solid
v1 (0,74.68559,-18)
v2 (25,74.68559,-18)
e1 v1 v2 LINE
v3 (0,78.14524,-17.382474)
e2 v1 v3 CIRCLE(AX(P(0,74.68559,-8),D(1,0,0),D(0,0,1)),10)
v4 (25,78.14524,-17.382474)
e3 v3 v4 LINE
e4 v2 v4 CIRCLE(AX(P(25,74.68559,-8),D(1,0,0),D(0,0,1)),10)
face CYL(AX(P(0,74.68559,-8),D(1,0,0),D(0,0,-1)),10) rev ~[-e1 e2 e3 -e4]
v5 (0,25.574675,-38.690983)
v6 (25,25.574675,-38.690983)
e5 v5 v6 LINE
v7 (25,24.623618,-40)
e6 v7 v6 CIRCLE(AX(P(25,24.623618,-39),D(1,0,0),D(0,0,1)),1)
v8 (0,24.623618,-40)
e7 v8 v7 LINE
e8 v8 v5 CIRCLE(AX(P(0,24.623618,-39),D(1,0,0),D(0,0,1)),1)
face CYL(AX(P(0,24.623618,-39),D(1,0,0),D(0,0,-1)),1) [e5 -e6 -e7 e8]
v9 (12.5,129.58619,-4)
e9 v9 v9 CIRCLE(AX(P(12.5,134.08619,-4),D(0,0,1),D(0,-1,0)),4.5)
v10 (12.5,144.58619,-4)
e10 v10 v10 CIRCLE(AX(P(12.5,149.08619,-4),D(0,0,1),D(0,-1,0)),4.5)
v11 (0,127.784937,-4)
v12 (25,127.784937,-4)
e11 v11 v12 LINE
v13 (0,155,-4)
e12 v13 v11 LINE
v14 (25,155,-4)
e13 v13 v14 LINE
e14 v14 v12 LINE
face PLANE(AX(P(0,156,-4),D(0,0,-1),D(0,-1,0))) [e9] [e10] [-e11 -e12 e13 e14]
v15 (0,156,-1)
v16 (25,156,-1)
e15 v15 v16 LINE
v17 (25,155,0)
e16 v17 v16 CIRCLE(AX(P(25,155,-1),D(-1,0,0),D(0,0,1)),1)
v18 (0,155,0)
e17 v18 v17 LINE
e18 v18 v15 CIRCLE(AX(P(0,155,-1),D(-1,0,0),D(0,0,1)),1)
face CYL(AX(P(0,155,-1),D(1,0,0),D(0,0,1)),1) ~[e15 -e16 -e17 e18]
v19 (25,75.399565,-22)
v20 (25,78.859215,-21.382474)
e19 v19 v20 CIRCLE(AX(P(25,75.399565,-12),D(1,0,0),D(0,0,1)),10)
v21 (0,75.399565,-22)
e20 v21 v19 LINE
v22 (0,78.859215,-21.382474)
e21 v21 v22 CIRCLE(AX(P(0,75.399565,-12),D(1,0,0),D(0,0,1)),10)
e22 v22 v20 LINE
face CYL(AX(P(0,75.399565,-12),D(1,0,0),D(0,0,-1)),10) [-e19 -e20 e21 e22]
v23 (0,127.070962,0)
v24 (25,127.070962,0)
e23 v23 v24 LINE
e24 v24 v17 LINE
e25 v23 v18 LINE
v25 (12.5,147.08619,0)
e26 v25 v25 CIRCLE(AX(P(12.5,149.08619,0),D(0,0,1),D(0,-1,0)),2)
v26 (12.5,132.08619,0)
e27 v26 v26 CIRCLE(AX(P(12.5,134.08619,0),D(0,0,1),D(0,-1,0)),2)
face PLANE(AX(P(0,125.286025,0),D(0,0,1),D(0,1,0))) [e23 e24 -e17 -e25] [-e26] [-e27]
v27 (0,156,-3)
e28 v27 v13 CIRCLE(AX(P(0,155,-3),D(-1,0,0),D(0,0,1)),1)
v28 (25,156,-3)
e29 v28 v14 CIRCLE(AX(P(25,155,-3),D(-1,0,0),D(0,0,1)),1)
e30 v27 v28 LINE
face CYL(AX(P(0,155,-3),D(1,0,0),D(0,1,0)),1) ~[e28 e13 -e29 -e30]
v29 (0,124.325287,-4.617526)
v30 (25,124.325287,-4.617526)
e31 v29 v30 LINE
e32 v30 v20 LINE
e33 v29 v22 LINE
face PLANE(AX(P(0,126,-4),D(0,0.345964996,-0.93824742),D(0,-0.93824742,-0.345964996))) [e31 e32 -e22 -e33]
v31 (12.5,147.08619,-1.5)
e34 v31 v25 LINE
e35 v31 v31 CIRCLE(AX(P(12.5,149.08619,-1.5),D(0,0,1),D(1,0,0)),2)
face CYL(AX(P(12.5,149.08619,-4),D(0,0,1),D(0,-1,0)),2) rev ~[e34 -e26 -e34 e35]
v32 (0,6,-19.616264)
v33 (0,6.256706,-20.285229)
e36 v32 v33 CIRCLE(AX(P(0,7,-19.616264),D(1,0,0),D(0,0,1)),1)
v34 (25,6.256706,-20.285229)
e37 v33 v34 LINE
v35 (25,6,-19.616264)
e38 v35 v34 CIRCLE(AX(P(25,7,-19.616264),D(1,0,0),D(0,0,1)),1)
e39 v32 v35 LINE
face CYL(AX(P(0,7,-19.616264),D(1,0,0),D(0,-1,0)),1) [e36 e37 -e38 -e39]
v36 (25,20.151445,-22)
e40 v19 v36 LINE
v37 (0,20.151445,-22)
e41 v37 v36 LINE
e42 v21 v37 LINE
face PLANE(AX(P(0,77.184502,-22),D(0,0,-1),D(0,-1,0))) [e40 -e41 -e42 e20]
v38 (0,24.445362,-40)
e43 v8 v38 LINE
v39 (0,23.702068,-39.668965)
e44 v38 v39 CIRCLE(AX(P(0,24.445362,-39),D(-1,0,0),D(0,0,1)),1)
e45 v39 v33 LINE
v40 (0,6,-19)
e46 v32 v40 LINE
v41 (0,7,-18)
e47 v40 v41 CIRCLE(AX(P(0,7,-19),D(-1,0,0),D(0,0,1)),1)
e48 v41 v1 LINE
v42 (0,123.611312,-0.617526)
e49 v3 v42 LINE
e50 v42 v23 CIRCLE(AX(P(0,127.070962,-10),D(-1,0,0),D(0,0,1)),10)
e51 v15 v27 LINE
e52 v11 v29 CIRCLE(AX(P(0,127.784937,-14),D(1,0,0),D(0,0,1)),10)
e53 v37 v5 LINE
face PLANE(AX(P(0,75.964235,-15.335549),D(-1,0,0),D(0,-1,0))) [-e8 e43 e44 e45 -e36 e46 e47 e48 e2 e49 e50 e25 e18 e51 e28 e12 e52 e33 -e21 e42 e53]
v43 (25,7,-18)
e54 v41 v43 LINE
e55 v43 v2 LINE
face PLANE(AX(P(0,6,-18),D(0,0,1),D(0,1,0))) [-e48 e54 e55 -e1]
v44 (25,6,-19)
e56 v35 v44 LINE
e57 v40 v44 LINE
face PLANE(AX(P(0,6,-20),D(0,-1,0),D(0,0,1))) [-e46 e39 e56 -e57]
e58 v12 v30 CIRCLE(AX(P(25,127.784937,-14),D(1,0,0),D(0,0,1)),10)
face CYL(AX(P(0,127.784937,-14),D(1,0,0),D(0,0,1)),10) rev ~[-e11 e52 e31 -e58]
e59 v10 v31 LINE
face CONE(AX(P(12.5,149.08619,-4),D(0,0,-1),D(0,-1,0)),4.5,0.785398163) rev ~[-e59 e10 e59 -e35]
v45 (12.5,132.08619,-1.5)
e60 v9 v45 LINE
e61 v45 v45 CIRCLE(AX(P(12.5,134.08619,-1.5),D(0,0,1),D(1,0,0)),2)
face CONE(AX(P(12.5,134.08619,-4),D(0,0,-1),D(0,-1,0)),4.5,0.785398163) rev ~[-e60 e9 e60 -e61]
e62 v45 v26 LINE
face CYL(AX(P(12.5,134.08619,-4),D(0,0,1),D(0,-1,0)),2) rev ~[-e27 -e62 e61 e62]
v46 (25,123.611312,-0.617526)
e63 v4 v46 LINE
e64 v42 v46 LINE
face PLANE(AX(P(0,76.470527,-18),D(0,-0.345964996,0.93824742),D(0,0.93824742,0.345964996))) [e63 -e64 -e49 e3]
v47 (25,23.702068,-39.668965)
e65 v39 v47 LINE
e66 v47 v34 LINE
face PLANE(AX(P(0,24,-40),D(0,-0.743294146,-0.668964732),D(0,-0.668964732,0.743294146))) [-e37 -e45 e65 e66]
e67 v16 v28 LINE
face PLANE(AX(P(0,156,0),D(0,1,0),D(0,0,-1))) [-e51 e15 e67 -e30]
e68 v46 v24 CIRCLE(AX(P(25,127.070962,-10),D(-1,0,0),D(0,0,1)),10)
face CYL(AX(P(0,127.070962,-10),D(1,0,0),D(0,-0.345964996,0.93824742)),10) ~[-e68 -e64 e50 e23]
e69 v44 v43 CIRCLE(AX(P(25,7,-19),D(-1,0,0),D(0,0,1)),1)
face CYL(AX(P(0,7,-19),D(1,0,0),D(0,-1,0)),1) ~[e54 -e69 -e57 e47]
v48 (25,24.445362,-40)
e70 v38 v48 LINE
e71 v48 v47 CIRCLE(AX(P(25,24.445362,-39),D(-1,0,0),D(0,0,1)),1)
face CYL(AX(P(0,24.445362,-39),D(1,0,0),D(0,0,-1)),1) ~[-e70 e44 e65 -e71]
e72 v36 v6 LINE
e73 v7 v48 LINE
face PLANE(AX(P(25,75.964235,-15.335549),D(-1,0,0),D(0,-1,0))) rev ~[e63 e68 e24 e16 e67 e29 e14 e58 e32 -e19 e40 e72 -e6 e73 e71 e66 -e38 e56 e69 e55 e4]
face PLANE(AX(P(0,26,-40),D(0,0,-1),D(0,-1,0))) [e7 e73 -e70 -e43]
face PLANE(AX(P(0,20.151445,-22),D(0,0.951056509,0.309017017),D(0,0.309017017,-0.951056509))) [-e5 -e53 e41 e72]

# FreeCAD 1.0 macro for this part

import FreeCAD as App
import Part
import Sketcher

V = App.Vector
Q = App.Units.Quantity


def edges_at(feature, points):
    """Names of the edges that pass closest to the given points."""
    edges = feature.Shape.Edges
    near = lambda p: min(range(len(edges)), key=lambda i: edges[i].distToShape(Part.Vertex(*p))[0])
    return sorted({f"Edge{near(p) + 1}" for p in points})

doc = App.newDocument("Part")
body = doc.addObject("PartDesign::Body", "Body")

sketch1 = body.newObject("Sketcher::SketchObject", "Sketch")
sketch1.AttachmentSupport = (doc.getObject("YZ_Plane"), [""])
sketch1.MapMode = "FlatFace"
sketch1.addGeometry([
    Part.LineSegment(V(6, -18, 0), V(6, -20, 0)),
    Part.LineSegment(V(6, -20, 0), V(24, -40, 0)),
    Part.LineSegment(V(24, -40, 0), V(26, -40, 0)),
    Part.LineSegment(V(26, -40, 0), V(20.151445, -22, 0)),
    Part.LineSegment(V(20.151445, -22, 0), V(77.184502, -22, 0)),
    Part.LineSegment(V(77.184502, -22, 0), V(126, -4, 0)),
    Part.LineSegment(V(126, -4, 0), V(156, -4, 0)),
    Part.LineSegment(V(156, -4, 0), V(156, 0, 0)),
    Part.LineSegment(V(156, 0, 0), V(125.286025, 0, 0)),
    Part.LineSegment(V(125.286025, 0, 0), V(76.470527, -18, 0)),
    Part.LineSegment(V(76.470527, -18, 0), V(6, -18, 0)),
], False)
sketch1.addConstraint([
    Sketcher.Constraint("Coincident", 0, 2, 1, 1),
    Sketcher.Constraint("Coincident", 1, 2, 2, 1),
    Sketcher.Constraint("Coincident", 2, 2, 3, 1),
    Sketcher.Constraint("Coincident", 3, 2, 4, 1),
    Sketcher.Constraint("Coincident", 4, 2, 5, 1),
    Sketcher.Constraint("Coincident", 5, 2, 6, 1),
    Sketcher.Constraint("Coincident", 6, 2, 7, 1),
    Sketcher.Constraint("Coincident", 7, 2, 8, 1),
    Sketcher.Constraint("Coincident", 8, 2, 9, 1),
    Sketcher.Constraint("Coincident", 9, 2, 10, 1),
    Sketcher.Constraint("Coincident", 10, 2, 0, 1),
    Sketcher.Constraint("Vertical", 0),
    Sketcher.Constraint("Horizontal", 2),
    Sketcher.Constraint("Horizontal", 4),
    Sketcher.Constraint("Horizontal", 6),
    Sketcher.Constraint("Vertical", 7),
    Sketcher.Constraint("Horizontal", 8),
    Sketcher.Constraint("Horizontal", 10),
    Sketcher.Constraint("PointOnObject", 7, 2, -1),
    Sketcher.Constraint("Parallel", 5, 9),
    Sketcher.Constraint("Equal", 2, 0),
    Sketcher.Constraint("Equal", 5, 9),
    Sketcher.Constraint("DistanceX", 2, 1, 2, 2, 2.0),
    Sketcher.Constraint("DistanceX", 6, 1, 6, 2, 30.0),
    Sketcher.Constraint("DistanceY", 7, 1, 7, 2, 4.0),
    Sketcher.Constraint("Angle", 3, Q("108.000001 deg")),
    Sketcher.Constraint("DistanceX", -1, 1, 0, 2, 6.0),
    Sketcher.Constraint("DistanceY", 0, 2, -1, 1, 20.0),
    Sketcher.Constraint("DistanceX", -1, 1, 1, 2, 24.0),
    Sketcher.Constraint("DistanceY", 1, 2, -1, 1, 40.0),
    Sketcher.Constraint("DistanceX", -1, 1, 5, 2, 126.0),
    Sketcher.Constraint("DistanceX", -1, 1, 4, 2, 77.184502),
    Sketcher.Constraint("DistanceX", 8, 2, 8, 1, 30.713975),
])
pad1 = body.newObject("PartDesign::Pad", "Pad")
pad1.Profile = sketch1
pad1.Length = 25

sketch2 = body.newObject("Sketcher::SketchObject", "Sketch001")
sketch2.AttachmentSupport = (doc.getObject("XY_Plane"), [""])
sketch2.MapMode = "FlatFace"
sketch2.AttachmentOffset = App.Placement(V(0, 0, -4), App.Rotation())
sketch2.addGeometry([
    Part.Circle(V(12.5, 134.08619, 0), V(0, 0, 1), 2),
    Part.Circle(V(12.5, 149.08619, 0), V(0, 0, 1), 2),
], False)
sketch2.addConstraint([
    Sketcher.Constraint("Equal", 0, 1),
    Sketcher.Constraint("Vertical", 0, 3, 1, 3),
    Sketcher.Constraint("Diameter", 0, 4.0),
    Sketcher.Constraint("DistanceY", 0, 3, 1, 3, 15.0),
    Sketcher.Constraint("DistanceX", -1, 1, 0, 3, 12.5),
    Sketcher.Constraint("DistanceY", -1, 1, 0, 3, 134.08619),
])
doc.recompute()
hole = body.newObject("PartDesign::Hole", "Hole")
hole.Profile = sketch2
hole.ThreadType = "None"
hole.Diameter = 4
hole.DepthType = "Dimension"
hole.Depth = 25
hole.DrillPoint = "Flat"
hole.HoleCutType = "Countersink"
hole.HoleCutDiameter = 9
hole.HoleCutCountersinkAngle = 90
hole.Reversed = True
doc.recompute()

fillet = body.newObject("PartDesign::Fillet", "Fillet")
fillet.Base = (hole, edges_at(hole, [
    (12.5, 6, -18),
    (12.5, 6, -20),
    (12.5, 24, -40),
    (12.5, 26, -40),
]))
fillet.Radius = 1
doc.recompute()

fillet2 = body.newObject("PartDesign::Fillet", "Fillet001")
fillet2.Base = (fillet, edges_at(fillet, [
    (12.5, 76.471, -18),
    (12.5, 125.286, 0),
    (12.5, 77.185, -22),
    (12.5, 126, -4),
]))
fillet2.Radius = 10
doc.recompute()

fillet3 = body.newObject("PartDesign::Fillet", "Fillet002")
fillet3.Base = (fillet2, edges_at(fillet2, [(12.5, 156, -4), (12.5, 156, 0)]))
fillet3.Radius = 1

doc.recompute()
